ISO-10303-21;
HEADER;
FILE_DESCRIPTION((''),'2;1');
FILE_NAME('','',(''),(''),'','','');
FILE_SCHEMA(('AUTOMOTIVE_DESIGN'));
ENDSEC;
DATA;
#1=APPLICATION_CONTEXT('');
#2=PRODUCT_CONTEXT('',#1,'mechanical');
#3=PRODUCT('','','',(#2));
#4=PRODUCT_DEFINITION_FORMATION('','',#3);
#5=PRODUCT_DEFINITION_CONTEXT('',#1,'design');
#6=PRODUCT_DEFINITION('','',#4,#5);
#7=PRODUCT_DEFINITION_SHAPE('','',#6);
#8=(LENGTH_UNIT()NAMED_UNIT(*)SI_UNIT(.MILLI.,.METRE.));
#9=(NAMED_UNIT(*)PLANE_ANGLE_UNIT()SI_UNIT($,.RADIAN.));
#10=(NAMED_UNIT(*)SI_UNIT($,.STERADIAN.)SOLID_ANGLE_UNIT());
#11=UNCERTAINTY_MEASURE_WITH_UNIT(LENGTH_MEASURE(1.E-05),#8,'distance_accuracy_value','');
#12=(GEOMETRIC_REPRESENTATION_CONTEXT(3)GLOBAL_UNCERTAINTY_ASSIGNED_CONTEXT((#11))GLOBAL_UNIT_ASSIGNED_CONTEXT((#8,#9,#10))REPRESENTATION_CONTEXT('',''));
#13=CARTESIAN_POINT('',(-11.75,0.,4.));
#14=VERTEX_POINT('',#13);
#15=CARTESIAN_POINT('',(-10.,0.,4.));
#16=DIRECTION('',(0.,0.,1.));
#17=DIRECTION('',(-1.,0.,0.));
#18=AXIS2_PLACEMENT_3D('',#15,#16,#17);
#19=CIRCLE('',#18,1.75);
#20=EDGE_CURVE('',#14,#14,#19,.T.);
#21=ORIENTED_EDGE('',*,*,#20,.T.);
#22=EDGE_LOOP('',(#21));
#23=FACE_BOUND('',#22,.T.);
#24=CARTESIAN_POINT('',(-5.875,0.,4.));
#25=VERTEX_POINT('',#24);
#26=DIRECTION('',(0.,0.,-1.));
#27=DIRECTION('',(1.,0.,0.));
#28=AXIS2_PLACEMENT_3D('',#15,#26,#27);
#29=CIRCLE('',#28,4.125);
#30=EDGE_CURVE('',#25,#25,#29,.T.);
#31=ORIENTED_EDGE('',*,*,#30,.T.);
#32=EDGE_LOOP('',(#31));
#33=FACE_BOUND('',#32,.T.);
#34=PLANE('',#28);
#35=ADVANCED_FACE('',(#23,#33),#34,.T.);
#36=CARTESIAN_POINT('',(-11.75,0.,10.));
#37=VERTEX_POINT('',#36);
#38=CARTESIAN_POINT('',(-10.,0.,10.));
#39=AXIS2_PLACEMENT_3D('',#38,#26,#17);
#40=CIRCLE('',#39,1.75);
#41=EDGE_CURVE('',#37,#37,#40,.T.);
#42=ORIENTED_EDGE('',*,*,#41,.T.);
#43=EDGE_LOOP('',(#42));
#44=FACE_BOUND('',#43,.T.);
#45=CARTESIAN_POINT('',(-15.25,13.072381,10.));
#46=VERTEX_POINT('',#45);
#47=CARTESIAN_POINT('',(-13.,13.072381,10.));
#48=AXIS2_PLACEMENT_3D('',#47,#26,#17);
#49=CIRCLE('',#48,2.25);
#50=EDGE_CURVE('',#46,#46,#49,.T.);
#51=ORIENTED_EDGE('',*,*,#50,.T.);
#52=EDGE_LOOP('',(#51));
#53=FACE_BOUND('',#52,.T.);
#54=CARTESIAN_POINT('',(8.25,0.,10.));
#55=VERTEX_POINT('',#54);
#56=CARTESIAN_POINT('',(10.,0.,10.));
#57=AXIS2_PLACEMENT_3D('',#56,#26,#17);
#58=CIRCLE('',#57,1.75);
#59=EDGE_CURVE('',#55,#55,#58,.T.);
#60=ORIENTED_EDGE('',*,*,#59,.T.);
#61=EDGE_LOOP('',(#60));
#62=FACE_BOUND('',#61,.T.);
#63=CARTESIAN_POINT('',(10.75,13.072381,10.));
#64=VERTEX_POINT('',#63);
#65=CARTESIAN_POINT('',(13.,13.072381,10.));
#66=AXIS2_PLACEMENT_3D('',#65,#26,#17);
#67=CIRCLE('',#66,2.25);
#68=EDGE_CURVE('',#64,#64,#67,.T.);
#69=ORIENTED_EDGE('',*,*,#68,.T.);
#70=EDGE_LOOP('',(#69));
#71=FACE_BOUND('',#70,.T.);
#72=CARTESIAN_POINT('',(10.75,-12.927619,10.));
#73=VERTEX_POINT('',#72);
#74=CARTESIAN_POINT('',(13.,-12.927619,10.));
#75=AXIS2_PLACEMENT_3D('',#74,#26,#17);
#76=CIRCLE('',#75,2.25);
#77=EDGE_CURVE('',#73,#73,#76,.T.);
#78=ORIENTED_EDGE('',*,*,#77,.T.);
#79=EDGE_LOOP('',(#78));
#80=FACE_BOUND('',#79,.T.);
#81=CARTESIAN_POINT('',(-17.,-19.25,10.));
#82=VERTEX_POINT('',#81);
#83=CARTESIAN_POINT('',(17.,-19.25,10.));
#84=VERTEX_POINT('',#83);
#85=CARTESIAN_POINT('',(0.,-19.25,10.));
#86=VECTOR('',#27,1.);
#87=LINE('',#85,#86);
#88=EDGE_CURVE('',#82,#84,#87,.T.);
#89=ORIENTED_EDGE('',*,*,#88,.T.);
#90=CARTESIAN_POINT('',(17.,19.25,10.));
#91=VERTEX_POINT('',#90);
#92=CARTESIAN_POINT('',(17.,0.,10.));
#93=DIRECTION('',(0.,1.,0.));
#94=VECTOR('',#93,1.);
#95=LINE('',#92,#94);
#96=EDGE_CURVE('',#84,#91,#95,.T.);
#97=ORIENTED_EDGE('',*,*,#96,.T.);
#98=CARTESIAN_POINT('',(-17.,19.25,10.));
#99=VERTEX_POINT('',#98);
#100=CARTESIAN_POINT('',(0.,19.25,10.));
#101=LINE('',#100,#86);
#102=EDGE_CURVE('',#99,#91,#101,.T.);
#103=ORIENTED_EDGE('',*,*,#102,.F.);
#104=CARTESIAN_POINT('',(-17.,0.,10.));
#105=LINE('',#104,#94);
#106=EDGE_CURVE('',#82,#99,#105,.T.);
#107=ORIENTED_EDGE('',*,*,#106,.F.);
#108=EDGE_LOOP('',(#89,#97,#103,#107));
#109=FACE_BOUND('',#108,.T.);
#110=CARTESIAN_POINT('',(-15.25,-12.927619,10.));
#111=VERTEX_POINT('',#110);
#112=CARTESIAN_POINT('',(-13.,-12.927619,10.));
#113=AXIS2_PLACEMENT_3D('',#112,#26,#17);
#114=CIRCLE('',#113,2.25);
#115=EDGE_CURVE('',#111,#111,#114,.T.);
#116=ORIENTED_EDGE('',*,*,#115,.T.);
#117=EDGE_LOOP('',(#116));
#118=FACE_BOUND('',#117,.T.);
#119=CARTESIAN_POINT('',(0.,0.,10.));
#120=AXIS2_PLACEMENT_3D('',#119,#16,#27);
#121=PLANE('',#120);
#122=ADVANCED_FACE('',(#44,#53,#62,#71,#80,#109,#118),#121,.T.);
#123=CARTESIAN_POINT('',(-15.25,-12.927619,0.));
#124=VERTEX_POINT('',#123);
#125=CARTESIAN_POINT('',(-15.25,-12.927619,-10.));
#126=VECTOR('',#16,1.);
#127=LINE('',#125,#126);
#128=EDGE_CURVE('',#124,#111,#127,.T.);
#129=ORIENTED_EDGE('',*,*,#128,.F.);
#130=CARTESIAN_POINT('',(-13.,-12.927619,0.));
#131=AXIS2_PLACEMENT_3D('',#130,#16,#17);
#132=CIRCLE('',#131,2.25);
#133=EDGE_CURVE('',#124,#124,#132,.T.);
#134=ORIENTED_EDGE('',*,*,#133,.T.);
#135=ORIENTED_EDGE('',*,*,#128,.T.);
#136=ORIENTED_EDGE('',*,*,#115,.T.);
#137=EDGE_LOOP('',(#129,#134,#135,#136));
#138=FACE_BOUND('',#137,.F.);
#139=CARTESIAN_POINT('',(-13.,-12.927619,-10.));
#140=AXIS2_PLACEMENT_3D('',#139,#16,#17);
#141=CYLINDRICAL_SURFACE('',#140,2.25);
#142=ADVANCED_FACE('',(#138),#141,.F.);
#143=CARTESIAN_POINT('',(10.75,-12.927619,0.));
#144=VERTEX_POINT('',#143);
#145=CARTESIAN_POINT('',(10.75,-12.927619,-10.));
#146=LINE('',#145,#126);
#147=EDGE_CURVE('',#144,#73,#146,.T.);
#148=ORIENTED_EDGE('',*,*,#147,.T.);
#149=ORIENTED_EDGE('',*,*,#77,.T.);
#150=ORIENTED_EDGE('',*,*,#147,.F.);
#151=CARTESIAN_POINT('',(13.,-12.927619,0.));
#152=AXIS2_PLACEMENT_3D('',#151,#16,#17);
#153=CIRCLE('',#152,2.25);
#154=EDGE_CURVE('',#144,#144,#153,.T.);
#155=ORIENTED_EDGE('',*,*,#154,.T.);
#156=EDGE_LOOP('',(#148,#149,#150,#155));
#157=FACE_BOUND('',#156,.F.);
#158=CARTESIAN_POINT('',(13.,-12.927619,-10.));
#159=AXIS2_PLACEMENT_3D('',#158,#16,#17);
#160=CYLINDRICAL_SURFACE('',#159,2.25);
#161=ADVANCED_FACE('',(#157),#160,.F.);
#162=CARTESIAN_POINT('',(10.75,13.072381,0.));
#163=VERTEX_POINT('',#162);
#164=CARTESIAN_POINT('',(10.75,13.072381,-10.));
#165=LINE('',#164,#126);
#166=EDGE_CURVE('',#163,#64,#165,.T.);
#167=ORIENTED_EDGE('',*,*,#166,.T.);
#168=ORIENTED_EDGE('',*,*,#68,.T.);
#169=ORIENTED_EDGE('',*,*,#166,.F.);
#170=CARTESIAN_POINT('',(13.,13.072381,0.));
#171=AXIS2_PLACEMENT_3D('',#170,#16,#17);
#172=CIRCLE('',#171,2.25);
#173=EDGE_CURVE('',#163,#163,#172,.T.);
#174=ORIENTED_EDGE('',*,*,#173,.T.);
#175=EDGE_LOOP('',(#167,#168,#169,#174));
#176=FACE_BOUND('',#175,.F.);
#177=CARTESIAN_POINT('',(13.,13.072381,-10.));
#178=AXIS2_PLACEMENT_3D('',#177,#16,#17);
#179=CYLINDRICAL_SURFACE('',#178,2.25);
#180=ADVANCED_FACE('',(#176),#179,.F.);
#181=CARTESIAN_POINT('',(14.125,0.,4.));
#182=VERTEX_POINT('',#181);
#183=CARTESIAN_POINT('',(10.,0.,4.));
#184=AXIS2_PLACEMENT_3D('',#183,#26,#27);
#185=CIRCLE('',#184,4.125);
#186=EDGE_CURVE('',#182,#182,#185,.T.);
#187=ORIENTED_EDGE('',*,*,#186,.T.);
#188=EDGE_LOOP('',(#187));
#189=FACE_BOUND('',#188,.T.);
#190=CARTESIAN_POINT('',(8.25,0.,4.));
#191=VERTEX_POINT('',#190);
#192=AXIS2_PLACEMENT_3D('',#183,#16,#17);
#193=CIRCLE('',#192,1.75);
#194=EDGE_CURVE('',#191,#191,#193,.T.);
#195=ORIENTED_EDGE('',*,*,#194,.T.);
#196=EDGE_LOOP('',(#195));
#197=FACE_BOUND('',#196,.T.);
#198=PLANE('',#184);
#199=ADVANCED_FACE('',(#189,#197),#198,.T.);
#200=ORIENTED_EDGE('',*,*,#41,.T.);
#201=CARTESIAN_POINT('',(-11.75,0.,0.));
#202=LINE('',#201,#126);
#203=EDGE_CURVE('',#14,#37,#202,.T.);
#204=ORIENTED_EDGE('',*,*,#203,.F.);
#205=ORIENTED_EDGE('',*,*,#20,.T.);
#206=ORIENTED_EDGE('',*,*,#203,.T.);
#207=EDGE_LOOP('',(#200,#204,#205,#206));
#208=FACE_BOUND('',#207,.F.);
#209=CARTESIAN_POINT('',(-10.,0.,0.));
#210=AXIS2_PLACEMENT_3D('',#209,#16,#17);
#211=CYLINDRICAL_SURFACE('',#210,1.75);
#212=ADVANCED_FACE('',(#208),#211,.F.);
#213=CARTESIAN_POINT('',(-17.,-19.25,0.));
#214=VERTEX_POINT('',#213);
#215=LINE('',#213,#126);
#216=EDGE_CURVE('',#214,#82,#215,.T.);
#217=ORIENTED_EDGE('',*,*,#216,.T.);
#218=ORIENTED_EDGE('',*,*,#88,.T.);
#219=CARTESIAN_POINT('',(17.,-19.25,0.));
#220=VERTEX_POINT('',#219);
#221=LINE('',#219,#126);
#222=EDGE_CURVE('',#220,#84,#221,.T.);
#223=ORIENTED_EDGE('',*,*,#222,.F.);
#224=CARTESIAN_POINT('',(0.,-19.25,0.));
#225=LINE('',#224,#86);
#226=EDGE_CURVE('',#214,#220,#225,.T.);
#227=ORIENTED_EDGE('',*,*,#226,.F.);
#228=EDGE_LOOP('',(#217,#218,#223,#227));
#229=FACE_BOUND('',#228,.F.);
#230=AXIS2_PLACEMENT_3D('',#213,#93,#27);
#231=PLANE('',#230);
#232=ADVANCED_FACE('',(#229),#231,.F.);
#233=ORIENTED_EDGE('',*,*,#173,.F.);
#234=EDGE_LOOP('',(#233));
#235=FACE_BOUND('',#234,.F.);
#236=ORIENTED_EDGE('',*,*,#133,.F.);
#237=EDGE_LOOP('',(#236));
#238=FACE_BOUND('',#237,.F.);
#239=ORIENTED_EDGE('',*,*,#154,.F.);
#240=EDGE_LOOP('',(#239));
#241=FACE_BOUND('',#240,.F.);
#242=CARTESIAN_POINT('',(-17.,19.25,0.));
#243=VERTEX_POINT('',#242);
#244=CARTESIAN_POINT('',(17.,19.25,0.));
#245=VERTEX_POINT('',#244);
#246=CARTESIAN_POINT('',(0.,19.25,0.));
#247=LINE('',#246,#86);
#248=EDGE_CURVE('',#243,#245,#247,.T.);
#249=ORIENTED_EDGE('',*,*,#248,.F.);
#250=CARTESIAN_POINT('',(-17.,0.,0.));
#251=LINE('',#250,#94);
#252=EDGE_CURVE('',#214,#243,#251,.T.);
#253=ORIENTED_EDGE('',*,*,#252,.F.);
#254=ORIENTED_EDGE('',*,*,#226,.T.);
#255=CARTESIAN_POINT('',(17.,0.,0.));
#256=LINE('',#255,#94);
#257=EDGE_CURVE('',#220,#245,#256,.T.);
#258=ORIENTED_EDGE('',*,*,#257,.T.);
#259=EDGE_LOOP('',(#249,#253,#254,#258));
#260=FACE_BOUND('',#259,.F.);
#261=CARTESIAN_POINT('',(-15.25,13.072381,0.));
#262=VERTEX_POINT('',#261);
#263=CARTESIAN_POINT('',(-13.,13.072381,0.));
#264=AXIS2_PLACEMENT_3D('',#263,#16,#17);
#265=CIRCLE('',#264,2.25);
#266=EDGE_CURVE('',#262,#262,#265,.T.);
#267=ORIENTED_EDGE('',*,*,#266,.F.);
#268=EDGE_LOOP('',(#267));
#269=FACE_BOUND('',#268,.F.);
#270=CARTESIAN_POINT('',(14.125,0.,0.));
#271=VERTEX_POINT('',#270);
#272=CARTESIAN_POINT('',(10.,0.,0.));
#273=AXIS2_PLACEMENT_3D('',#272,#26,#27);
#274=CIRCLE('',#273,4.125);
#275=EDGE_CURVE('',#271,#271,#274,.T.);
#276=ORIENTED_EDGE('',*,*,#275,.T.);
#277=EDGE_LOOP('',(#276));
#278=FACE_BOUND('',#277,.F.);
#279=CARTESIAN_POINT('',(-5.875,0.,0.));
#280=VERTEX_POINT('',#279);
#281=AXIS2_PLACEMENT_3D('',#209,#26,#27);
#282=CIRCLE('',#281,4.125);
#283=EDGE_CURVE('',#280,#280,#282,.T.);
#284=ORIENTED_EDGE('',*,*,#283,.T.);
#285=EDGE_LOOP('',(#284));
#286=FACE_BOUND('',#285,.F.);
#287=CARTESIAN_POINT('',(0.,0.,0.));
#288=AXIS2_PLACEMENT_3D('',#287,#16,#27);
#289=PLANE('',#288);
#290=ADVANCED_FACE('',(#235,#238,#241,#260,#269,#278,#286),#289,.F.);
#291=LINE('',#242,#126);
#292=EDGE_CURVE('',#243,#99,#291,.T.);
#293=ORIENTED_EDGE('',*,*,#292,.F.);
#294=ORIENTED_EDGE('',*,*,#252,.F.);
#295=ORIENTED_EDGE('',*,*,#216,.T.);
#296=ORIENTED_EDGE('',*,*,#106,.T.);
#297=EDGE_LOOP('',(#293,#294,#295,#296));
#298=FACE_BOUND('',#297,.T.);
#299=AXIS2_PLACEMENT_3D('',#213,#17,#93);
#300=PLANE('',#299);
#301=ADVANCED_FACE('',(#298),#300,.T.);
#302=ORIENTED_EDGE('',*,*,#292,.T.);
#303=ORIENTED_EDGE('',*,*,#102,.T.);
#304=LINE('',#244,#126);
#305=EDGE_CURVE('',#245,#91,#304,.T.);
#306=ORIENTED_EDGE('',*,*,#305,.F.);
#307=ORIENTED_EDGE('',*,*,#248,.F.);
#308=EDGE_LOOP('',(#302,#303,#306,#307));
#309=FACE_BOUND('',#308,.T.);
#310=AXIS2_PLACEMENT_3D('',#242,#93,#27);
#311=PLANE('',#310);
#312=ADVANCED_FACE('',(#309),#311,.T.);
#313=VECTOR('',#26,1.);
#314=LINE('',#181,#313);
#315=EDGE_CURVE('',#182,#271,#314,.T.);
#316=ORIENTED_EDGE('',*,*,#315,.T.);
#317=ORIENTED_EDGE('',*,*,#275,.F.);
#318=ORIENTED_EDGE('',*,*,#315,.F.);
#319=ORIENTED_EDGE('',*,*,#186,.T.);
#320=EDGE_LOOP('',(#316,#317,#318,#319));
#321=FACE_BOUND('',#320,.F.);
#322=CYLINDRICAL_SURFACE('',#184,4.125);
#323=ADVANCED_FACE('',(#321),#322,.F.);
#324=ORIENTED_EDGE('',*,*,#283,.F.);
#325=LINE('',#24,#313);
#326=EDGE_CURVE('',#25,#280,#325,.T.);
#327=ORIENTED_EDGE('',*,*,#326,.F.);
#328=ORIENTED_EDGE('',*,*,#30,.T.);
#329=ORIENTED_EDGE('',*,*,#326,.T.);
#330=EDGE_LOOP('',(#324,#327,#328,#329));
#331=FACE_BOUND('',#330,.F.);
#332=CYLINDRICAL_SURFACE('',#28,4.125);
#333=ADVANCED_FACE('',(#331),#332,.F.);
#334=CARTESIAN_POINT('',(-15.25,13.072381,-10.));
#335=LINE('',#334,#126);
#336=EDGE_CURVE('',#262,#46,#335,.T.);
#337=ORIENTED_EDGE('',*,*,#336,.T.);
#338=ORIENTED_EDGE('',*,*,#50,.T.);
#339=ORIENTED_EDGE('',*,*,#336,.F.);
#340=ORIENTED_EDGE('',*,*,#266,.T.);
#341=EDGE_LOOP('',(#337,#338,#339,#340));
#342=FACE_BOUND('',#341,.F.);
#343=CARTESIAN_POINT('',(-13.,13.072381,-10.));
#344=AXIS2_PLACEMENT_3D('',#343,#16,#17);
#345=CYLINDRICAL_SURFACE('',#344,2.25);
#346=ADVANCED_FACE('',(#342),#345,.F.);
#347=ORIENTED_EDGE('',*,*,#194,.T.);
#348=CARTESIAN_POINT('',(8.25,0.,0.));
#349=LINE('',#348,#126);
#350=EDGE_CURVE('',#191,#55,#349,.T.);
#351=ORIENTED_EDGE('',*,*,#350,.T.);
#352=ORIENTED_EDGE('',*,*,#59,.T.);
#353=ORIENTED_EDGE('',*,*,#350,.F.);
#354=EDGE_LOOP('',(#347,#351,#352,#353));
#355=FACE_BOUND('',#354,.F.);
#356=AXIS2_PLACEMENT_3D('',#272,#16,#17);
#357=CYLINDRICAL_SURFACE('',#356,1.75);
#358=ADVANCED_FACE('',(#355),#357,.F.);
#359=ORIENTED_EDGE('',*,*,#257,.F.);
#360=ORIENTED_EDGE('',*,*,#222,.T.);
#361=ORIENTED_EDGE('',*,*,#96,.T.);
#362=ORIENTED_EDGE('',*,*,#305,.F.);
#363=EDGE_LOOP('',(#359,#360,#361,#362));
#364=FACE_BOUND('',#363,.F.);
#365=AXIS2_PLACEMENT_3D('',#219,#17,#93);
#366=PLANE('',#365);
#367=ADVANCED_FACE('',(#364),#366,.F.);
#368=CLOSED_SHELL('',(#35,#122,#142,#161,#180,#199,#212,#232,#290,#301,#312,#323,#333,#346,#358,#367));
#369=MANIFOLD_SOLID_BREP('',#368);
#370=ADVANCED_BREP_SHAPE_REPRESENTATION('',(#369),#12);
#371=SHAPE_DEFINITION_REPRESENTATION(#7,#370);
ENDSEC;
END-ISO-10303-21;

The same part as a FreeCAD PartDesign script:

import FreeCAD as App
import Part
import Sketcher
from FreeCAD import Vector


def add_polygon(sketch, points):
    """Adds a closed chain of lines whose ends are joined by coincident constraints."""
    first, n = sketch.GeometryCount, len(points)
    for a, b in zip(points, points[1:] + points[:1]):
        sketch.addGeometry(Part.LineSegment(App.Vector(*a, 0), App.Vector(*b, 0)), False)
    for i in range(n):
        sketch.addConstraint(Sketcher.Constraint("Coincident", first + i, 2, first + (i + 1) % n, 1))

doc = App.newDocument("Part")
body = doc.addObject("PartDesign::Body", "Body")

sketch1 = body.newObject("Sketcher::SketchObject", "Sketch")
sketch1.AttachmentSupport = (doc.getObject("XY_Plane"), [""])
sketch1.MapMode = "FlatFace"
add_polygon(sketch1, [(-17, 19), (-17, -19), (17, -19), (17, 19)])
sketch1.addConstraint([
    Sketcher.Constraint("Vertical", 0),
    Sketcher.Constraint("Horizontal", 1),
    Sketcher.Constraint("Vertical", 2),
    Sketcher.Constraint("Horizontal", 3),
    Sketcher.Constraint("Symmetric", 0, 2, 2, 2, -1, 1),
    Sketcher.Constraint("DistanceX", 1, 1, 1, 2, 34.0),
    Sketcher.Constraint("DistanceY", 0, 2, 0, 1, 38.5),
])
pad1 = body.newObject("PartDesign::Pad", "Pad")
pad1.Profile = sketch1
pad1.Length = 10

sketch2 = body.newObject("Sketcher::SketchObject", "Sketch001")
sketch2.AttachmentSupport = (doc.getObject("XY_Plane"), [""])
sketch2.MapMode = "FlatFace"
sketch2.addGeometry([
    Part.Circle(Vector(-13, -12.9, 0), Vector(0, 0, 1), 2.2),
    Part.Circle(Vector(13, -12.9, 0), Vector(0, 0, 1), 2.2),
    Part.Circle(Vector(-13, 13.1, 0), Vector(0, 0, 1), 2.2),
    Part.Circle(Vector(13, 13.1, 0), Vector(0, 0, 1), 2.2),
], False)
sketch2.addConstraint([
    Sketcher.Constraint("Equal", 0, 1),
    Sketcher.Constraint("Equal", 1, 2),
    Sketcher.Constraint("Equal", 2, 3),
    Sketcher.Constraint("Symmetric", 0, 3, 1, 3, -2),
    Sketcher.Constraint("Symmetric", 2, 3, 3, 3, -2),
    Sketcher.Constraint("Vertical", 0, 3, 2, 3),
    Sketcher.Constraint("Diameter", 0, 4.5),
    Sketcher.Constraint("DistanceX", 0, 3, -1, 1, 13.0),
    Sketcher.Constraint("DistanceY", 0, 3, 2, 3, 26.0),
    Sketcher.Constraint("DistanceY", 0, 3, -1, 1, 12.927619),
])
doc.recompute()
hole = body.newObject("PartDesign::Hole", "Hole")
hole.Profile = sketch2
hole.ThreadType = "None"
hole.Diameter = 4.5
hole.DepthType = "Dimension"
hole.Depth = 10
hole.DrillPoint = "Angled"
hole.DrillPointAngle = 118
hole.Reversed = True

sketch3 = body.newObject("Sketcher::SketchObject", "Sketch002")
sketch3.AttachmentSupport = (doc.getObject("XY_Plane"), [""])
sketch3.MapMode = "FlatFace"
sketch3.addGeometry([
    Part.Circle(Vector(10, 0, 0), Vector(0, 0, 1), 1.8),
    Part.Circle(Vector(-10, 0, 0), Vector(0, 0, 1), 1.8),
], False)
sketch3.addConstraint([
    Sketcher.Constraint("Equal", 0, 1),
    Sketcher.Constraint("Symmetric", 0, 3, 1, 3, -1, 1),
    Sketcher.Constraint("PointOnObject", 0, 3, -1),
    Sketcher.Constraint("Diameter", 0, 3.5),
    Sketcher.Constraint("DistanceX", -1, 1, 0, 3, 10.0),
])
doc.recompute()
hole2 = body.newObject("PartDesign::Hole", "Hole001")
hole2.Profile = sketch3
hole2.ThreadType = "None"
hole2.Diameter = 3.5
hole2.DepthType = "Dimension"
hole2.Depth = 10
hole2.DrillPoint = "Angled"
hole2.DrillPointAngle = 118
hole2.HoleCutType = "Counterbore"
hole2.HoleCutDiameter = 8.25
hole2.HoleCutDepth = 4
hole2.Reversed = True

doc.recompute()
